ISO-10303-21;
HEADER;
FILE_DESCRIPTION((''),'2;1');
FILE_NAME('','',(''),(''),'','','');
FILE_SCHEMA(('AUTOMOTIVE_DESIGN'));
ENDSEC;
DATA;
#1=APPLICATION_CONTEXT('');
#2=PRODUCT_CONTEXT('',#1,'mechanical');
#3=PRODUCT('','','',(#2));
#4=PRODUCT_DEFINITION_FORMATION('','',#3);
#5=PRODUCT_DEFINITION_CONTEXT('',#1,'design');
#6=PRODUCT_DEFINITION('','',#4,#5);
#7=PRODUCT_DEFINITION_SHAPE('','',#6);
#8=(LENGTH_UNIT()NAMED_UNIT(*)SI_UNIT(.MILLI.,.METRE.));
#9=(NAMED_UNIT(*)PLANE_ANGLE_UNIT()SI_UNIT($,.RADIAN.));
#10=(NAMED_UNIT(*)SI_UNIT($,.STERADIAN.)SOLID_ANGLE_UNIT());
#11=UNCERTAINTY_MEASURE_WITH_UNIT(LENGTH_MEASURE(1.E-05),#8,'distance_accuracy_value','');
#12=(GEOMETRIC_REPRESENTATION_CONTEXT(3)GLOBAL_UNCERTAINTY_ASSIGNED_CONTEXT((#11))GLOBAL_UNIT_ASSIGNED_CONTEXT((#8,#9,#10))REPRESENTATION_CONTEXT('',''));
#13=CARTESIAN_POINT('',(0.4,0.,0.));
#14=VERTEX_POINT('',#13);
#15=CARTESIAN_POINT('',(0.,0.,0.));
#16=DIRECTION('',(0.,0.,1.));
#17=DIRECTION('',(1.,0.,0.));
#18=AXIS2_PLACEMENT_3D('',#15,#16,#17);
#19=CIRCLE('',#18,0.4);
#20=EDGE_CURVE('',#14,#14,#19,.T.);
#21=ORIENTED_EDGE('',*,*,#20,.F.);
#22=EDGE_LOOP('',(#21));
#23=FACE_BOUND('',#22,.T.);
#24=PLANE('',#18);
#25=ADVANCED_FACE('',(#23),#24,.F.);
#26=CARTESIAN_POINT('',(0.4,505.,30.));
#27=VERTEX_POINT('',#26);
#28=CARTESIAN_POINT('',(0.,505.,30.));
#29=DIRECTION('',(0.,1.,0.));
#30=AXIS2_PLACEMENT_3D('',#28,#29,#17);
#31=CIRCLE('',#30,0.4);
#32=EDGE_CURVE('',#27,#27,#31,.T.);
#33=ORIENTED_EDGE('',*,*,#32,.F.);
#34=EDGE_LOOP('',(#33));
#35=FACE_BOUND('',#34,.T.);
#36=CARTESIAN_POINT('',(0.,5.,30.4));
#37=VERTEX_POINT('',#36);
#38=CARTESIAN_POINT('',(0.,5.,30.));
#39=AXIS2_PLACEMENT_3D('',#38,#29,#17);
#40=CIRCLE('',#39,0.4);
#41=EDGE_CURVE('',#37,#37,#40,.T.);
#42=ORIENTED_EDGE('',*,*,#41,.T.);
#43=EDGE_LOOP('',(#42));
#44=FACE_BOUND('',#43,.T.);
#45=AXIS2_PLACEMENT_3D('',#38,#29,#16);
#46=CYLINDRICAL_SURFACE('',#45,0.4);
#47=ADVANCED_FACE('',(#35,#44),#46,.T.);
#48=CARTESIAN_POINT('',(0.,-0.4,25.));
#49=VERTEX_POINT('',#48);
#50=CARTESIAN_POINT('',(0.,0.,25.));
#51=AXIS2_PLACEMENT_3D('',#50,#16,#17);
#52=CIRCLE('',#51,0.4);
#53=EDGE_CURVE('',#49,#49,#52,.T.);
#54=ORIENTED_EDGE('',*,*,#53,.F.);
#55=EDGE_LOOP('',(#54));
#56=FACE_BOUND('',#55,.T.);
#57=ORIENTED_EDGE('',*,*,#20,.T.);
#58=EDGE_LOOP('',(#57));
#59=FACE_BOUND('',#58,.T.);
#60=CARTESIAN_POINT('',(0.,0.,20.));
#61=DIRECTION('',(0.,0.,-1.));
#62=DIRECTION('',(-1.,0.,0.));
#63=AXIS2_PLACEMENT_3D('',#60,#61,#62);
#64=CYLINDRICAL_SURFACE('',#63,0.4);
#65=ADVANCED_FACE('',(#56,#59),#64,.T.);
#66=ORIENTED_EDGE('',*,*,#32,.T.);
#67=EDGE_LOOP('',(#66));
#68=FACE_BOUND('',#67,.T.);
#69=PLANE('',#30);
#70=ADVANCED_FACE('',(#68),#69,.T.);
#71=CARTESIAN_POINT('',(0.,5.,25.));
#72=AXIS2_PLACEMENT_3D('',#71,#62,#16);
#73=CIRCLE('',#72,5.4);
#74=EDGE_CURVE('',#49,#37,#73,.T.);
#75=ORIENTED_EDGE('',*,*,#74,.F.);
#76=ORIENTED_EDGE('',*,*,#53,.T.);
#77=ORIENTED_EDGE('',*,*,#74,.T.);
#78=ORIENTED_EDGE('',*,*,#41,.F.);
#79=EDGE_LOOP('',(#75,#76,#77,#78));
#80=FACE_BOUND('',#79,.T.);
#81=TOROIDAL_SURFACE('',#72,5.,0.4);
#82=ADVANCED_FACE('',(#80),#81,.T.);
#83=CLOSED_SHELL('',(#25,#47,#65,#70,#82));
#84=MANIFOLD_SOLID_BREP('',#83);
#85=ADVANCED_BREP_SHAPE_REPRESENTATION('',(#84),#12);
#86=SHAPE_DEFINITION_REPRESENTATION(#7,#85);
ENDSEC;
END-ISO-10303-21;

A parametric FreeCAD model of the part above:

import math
import FreeCAD as App
import Part
import Sketcher

V = App.Vector
Q = App.Units.Quantity

doc = App.newDocument("Part")
params = doc.addObject("Spreadsheet::Sheet", "Params")
for row, (alias, value) in enumerate([
    ("sketch1_diameter", "0.8 mm"),
    ("pad1_length", "20 mm"),
    ("sketch2_diameter", "0.8 mm"),
    ("sketch3_radius", "5 mm"),
    ("sketch3_width", "500 mm"),
    ("sketch3_height", "5 mm"),
], start=1):
    params.set(f"A{row}", alias)
    params.set(f"B{row}", "=" + value)
    params.setAlias(f"B{row}", alias)

body = doc.addObject("PartDesign::Body", "Body")

sketch1 = doc.addObject("Sketcher::SketchObject", "Sketch")
body.addObject(sketch1)
sketch1.AttachmentSupport = (doc.XY_Plane, [""])
sketch1.MapMode = "FlatFace"
sketch1.addGeometry(Part.Circle(V(0, 0, 0), V(0, 0, 1), 0.4), False)
sketch1.addConstraint(Sketcher.Constraint("Coincident", 0, 3, -1, 1))
sketch1.addConstraint(Sketcher.Constraint("Diameter", 0, Q("0.8 mm")))
sketch1.setExpression("Constraints[1]", "Params.sketch1_diameter")
pad1 = doc.addObject("PartDesign::Pad", "Pad")
body.addObject(pad1)
pad1.Profile = sketch1
pad1.setExpression("Length", "Params.pad1_length")

sketch2 = doc.addObject("Sketcher::SketchObject", "Sketch001")
body.addObject(sketch2)
sketch2.AttachmentSupport = (doc.XY_Plane, [""])
sketch2.MapMode = "FlatFace"
sketch2.AttachmentOffset = App.Placement(V(0, 0, 20), App.Rotation())
sketch2.addGeometry(Part.Circle(V(0, 0, 0), V(0, 0, 1), 0.4), False)
sketch2.addConstraint(Sketcher.Constraint("Coincident", 0, 3, -1, 1))
sketch2.addConstraint(Sketcher.Constraint("Diameter", 0, Q("0.8 mm")))
sketch2.setExpression("Constraints[1]", "Params.sketch2_diameter")

sketch3 = doc.addObject("Sketcher::SketchObject", "Sketch002")
body.addObject(sketch3)
sketch3.AttachmentSupport = (doc.YZ_Plane, [""])
sketch3.MapMode = "FlatFace"
sketch3.addGeometry(Part.LineSegment(V(0, 20, 0), V(0, 25, 0)), False)
sketch3.addGeometry(Part.ArcOfCircle(Part.Circle(V(5, 25, 0), V(0, 0, 1), 5), math.radians(90), math.radians(180)), False)
sketch3.addGeometry(Part.LineSegment(V(5, 30, 0), V(505, 30, 0)), False)
sketch3.addConstraint(Sketcher.Constraint("Tangent", 0, 2, 1, 2))
sketch3.addConstraint(Sketcher.Constraint("Tangent", 1, 1, 2, 1))
sketch3.addConstraint(Sketcher.Constraint("Vertical", 0))
sketch3.addConstraint(Sketcher.Constraint("Horizontal", 2))
sketch3.addConstraint(Sketcher.Constraint("PointOnObject", 0, 1, -2))
sketch3.addConstraint(Sketcher.Constraint("Radius", 1, Q("5 mm")))
sketch3.addConstraint(Sketcher.Constraint("DistanceX", 2, 1, 2, 2, Q("500 mm")))
sketch3.addConstraint(Sketcher.Constraint("DistanceY", 0, 1, 0, 2, Q("5 mm")))
sketch3.addConstraint(Sketcher.Constraint("DistanceY", -1, 1, 1, 3, Q("25 mm")))
sketch3.setExpression("Constraints[5]", "Params.sketch3_radius")
sketch3.setExpression("Constraints[6]", "Params.sketch3_width")
sketch3.setExpression("Constraints[7]", "Params.sketch3_height")
doc.recompute()

additivepipe = doc.addObject("PartDesign::AdditivePipe", "AdditivePipe")
body.addObject(additivepipe)
additivepipe.Profile = sketch2
additivepipe.Spine = (sketch3, ["Edge1", "Edge2", "Edge3"])

doc.recompute()
